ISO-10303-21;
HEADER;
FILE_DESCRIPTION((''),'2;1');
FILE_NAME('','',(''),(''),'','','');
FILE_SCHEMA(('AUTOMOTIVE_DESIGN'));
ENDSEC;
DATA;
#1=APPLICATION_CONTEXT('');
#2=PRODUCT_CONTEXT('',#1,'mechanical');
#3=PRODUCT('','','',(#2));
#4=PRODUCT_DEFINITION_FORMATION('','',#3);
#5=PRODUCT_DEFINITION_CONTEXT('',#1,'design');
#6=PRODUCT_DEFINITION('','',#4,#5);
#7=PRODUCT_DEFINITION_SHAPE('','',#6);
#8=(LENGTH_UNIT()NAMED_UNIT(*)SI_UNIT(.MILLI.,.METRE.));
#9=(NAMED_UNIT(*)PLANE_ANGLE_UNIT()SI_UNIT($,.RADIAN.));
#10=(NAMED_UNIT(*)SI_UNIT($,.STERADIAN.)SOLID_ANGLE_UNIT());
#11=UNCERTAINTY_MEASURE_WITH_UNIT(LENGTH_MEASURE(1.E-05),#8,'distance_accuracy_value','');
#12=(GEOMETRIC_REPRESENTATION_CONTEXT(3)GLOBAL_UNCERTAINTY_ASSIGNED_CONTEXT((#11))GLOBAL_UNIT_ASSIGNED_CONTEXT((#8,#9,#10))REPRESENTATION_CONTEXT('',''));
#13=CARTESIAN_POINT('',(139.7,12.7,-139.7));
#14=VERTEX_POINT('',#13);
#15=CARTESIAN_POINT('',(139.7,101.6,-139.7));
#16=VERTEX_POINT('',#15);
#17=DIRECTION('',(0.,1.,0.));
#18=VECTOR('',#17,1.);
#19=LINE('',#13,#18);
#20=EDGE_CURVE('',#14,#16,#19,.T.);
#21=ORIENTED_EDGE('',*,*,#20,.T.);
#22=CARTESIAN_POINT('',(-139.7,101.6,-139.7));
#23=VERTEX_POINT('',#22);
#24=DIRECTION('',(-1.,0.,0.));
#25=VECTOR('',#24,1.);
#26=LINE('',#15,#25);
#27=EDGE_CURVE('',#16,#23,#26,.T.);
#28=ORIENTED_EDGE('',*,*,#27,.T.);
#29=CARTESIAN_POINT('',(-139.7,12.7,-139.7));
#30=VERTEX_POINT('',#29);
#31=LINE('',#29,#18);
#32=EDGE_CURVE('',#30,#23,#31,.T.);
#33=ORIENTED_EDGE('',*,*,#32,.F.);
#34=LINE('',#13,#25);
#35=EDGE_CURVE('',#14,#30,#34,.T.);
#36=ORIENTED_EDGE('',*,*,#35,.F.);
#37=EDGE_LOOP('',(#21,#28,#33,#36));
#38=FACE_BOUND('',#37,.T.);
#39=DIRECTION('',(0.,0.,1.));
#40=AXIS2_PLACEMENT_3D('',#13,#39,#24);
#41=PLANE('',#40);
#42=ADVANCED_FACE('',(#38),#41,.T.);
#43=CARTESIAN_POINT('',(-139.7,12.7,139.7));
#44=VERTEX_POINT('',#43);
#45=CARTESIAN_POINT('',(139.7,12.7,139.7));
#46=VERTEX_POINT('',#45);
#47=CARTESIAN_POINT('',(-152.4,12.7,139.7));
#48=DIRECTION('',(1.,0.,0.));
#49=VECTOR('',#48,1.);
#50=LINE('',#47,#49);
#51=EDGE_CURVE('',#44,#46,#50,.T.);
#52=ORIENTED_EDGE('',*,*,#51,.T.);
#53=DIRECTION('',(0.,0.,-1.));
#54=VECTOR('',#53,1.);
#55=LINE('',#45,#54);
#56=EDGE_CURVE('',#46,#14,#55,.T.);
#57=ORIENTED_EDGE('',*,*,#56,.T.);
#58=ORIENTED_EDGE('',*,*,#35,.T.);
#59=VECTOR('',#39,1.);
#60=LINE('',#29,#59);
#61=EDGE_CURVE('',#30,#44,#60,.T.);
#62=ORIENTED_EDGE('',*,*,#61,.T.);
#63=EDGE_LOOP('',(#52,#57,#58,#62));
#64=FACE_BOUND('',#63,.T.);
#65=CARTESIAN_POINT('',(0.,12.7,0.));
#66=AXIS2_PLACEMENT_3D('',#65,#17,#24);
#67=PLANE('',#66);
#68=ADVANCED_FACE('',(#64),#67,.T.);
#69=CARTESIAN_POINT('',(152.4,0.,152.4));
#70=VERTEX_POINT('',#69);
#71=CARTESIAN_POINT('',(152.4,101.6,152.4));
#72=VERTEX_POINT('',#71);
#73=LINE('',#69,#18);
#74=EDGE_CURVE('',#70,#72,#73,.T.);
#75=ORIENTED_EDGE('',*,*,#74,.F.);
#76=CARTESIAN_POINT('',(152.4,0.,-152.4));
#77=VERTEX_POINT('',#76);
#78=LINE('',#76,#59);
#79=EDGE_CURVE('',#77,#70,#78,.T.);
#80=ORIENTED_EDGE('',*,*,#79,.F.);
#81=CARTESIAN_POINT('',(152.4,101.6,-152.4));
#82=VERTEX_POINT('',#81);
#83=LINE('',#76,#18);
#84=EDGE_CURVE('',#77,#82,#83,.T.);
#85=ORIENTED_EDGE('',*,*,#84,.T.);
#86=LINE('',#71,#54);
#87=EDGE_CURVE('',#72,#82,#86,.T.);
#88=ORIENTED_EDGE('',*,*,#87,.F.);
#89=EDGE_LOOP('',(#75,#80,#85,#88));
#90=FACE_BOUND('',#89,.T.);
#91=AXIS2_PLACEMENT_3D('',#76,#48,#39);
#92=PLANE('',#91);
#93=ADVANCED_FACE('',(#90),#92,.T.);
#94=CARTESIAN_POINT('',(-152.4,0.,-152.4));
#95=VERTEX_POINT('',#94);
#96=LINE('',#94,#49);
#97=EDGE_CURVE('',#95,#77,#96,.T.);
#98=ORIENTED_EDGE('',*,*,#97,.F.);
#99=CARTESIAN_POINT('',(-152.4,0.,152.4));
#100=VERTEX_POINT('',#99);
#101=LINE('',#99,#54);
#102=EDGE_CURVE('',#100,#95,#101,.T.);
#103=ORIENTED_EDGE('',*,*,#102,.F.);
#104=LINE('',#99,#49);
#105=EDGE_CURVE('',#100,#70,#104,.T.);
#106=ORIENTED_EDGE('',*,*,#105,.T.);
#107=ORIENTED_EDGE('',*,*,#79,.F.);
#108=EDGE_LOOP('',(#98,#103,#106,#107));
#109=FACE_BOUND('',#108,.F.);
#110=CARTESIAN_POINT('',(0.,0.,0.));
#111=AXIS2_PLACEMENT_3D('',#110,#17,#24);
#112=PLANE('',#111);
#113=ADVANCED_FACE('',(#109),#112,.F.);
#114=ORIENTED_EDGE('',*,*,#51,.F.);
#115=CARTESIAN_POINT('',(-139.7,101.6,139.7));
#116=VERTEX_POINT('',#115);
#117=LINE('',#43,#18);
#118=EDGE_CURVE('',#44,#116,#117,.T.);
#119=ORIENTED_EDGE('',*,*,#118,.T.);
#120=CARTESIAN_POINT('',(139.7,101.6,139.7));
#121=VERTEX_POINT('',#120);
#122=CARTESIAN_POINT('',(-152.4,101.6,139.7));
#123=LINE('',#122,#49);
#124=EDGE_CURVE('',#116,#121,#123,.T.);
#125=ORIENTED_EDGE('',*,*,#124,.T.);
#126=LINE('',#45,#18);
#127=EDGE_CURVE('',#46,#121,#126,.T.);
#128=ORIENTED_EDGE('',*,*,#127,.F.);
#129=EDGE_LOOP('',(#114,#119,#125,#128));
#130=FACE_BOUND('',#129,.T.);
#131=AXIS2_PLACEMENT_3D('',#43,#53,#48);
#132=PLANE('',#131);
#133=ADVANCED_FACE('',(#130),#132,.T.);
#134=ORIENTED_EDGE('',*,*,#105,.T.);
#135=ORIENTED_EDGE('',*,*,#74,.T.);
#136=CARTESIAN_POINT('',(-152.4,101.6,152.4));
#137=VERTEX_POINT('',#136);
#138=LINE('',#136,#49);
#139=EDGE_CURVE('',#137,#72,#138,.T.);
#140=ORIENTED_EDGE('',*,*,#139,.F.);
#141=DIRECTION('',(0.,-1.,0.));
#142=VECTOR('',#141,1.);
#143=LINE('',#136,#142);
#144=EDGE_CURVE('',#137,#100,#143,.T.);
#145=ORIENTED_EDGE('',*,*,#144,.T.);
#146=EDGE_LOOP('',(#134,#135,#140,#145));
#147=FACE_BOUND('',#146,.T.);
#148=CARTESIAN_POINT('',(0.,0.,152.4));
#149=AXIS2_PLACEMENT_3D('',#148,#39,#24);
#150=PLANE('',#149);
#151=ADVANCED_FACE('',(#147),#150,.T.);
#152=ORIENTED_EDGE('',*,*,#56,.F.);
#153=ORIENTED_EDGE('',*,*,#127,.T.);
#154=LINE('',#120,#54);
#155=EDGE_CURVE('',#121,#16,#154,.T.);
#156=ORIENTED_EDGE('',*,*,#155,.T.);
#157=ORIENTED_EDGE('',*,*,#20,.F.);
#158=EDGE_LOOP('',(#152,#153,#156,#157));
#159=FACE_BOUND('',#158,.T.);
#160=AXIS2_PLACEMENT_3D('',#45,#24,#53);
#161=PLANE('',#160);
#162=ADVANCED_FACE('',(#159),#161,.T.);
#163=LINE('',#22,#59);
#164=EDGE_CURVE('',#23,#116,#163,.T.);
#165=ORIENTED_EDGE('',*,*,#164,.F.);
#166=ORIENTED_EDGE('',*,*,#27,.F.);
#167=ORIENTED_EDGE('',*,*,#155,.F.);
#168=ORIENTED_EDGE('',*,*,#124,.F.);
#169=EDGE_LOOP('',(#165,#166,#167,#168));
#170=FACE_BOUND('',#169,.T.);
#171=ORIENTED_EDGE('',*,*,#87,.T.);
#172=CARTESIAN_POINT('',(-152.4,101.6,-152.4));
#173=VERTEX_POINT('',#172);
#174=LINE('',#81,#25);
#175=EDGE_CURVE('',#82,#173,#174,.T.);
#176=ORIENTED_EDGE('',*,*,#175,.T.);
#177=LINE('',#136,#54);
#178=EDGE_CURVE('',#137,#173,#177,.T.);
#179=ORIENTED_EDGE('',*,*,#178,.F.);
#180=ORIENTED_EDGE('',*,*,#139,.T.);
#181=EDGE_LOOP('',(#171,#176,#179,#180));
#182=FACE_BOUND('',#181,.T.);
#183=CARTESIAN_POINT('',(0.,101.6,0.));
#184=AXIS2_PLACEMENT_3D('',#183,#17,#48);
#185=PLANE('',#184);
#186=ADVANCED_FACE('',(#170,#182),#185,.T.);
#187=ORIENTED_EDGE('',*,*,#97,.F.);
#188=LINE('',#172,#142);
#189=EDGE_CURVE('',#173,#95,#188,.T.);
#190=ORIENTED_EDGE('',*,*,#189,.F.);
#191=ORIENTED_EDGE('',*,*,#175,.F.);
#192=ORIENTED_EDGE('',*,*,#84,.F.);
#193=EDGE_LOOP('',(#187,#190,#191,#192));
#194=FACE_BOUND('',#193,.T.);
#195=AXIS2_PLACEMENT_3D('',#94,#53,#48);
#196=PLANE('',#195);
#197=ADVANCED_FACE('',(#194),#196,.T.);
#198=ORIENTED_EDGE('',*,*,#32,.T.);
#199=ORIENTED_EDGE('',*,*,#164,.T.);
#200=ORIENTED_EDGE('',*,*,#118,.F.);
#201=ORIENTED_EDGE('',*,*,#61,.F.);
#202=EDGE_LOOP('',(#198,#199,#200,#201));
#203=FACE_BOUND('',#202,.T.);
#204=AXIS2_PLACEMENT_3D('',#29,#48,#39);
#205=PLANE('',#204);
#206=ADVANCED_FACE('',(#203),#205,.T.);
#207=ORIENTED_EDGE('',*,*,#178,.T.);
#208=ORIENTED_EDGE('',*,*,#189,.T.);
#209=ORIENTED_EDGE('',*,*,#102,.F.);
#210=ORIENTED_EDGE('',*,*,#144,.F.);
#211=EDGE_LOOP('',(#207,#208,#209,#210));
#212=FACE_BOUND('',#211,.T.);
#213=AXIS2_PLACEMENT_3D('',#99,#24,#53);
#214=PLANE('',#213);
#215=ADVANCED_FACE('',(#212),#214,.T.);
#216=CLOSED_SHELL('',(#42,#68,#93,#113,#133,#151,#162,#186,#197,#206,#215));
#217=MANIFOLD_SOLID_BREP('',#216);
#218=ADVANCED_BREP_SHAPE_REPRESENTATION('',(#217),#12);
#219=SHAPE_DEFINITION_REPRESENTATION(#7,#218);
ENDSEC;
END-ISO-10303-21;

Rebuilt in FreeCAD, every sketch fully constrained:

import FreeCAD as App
import Part
import Sketcher
from FreeCAD import Vector
Q = App.Units.Quantity


def add_polygon(sketch, points):
    """Adds a closed chain of lines whose ends are joined by coincident constraints."""
    first, n = sketch.GeometryCount, len(points)
    for a, b in zip(points, points[1:] + points[:1]):
        sketch.addGeometry(Part.LineSegment(App.Vector(*a, 0), App.Vector(*b, 0)), False)
    for i in range(n):
        sketch.addConstraint(Sketcher.Constraint("Coincident", first + i, 2, first + (i + 1) % n, 1))

doc = App.newDocument("Part")
body = doc.addObject("PartDesign::Body", "Body")

sketch1 = body.newObject("Sketcher::SketchObject", "Sketch")
sketch1.AttachmentSupport = (doc.getObject("XZ_Plane"), [""])
sketch1.MapMode = "FlatFace"
add_polygon(sketch1, [(-152, 152), (152, 152), (152, -152), (-152, -152)])
sketch1.addConstraint([
    Sketcher.Constraint("Horizontal", 0),
    Sketcher.Constraint("Vertical", 1),
    Sketcher.Constraint("Horizontal", 2),
    Sketcher.Constraint("Vertical", 3),
    Sketcher.Constraint("Symmetric", 0, 2, 2, 2, -1, 1),
    Sketcher.Constraint("Equal", 2, 1),
    Sketcher.Constraint("DistanceX", 0, 1, 0, 2, Q("12 in")),
])
pad1 = body.newObject("PartDesign::Pad", "Pad")
pad1.Profile = sketch1
pad1.Length = Q("0.5 in")
pad1.Reversed = True

sketch2 = body.newObject("Sketcher::SketchObject", "Sketch001")
sketch2.AttachmentSupport = (doc.getObject("XZ_Plane"), [""])
sketch2.MapMode = "FlatFace"
sketch2.AttachmentOffset = App.Placement(Vector(0, 0, -0.5 * 25.4), App.Rotation())
add_polygon(sketch2, [(-152, 152), (152, 152), (152, -152), (-152, -152)])
add_polygon(sketch2, [(140, 140), (-140, 140), (-140, -140), (140, -140)])
sketch2.addConstraint([
    Sketcher.Constraint("Horizontal", 0),
    Sketcher.Constraint("Vertical", 1),
    Sketcher.Constraint("Horizontal", 2),
    Sketcher.Constraint("Vertical", 3),
    Sketcher.Constraint("Horizontal", 4),
    Sketcher.Constraint("Vertical", 5),
    Sketcher.Constraint("Horizontal", 6),
    Sketcher.Constraint("Vertical", 7),
    Sketcher.Constraint("Symmetric", 0, 2, 2, 2, -1, 1),
    Sketcher.Constraint("Symmetric", 4, 2, 6, 2, -1, 1),
    Sketcher.Constraint("Equal", 2, 1),
    Sketcher.Constraint("Equal", 6, 5),
    Sketcher.Constraint("DistanceX", 0, 1, 0, 2, Q("12 in")),
    Sketcher.Constraint("DistanceX", 4, 2, 4, 1, Q("11 in")),
])
pad2 = body.newObject("PartDesign::Pad", "Pad001")
pad2.Profile = sketch2
pad2.Length = Q("3.5 in")
pad2.Reversed = True

doc.recompute()
